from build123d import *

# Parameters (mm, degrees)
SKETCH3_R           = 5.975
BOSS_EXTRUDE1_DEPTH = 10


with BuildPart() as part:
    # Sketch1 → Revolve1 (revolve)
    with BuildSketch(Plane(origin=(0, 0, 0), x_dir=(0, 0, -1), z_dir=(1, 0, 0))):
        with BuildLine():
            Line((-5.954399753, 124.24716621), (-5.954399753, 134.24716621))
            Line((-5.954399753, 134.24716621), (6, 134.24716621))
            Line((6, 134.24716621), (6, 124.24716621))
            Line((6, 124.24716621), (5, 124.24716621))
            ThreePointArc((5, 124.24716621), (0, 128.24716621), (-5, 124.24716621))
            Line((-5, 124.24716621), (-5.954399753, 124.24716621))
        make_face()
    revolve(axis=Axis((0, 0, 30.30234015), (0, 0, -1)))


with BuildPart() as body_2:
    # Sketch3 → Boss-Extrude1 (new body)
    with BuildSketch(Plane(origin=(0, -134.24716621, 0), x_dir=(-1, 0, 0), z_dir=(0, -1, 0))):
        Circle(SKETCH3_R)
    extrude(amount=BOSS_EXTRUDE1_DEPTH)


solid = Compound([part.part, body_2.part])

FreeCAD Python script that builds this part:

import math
import FreeCAD as App
import Part
import Sketcher
from FreeCAD import Vector
Q = App.Units.Quantity

doc = App.newDocument("Part")
body = doc.addObject("PartDesign::Body", "Body")

sketch1 = body.newObject("Sketcher::SketchObject", "Sketch")
sketch1.AttachmentSupport = (doc.getObject("YZ_Plane"), [""])
sketch1.MapMode = "FlatFace"
sketch1.addGeometry([
    Part.LineSegment(Vector(134.2, 6, 0), Vector(124.2, 6, 0)),
    Part.LineSegment(Vector(124.2, 6, 0), Vector(124.2, 5, 0)),
    Part.ArcOfCircle(Part.Circle(Vector(123.1, 0, 0), Vector(0, 0, 1), 5.1), math.radians(-77), math.radians(77)),
    Part.LineSegment(Vector(124.2, -5, 0), Vector(124.2, -6, 0)),
    Part.LineSegment(Vector(124.2, -6, 0), Vector(134.2, -6, 0)),
    Part.LineSegment(Vector(134.2, -6, 0), Vector(134.2, 6, 0)),
], False)
sketch1.addConstraint([
    Sketcher.Constraint("Coincident", 0, 2, 1, 1),
    Sketcher.Constraint("Coincident", 1, 2, 2, 2),
    Sketcher.Constraint("Coincident", 2, 1, 3, 1),
    Sketcher.Constraint("Coincident", 3, 2, 4, 1),
    Sketcher.Constraint("Coincident", 4, 2, 5, 1),
    Sketcher.Constraint("Coincident", 5, 2, 0, 1),
    Sketcher.Constraint("Horizontal", 0),
    Sketcher.Constraint("Vertical", 1),
    Sketcher.Constraint("Vertical", 3),
    Sketcher.Constraint("Horizontal", 4),
    Sketcher.Constraint("Vertical", 5),
    Sketcher.Constraint("Symmetric", 1, 2, 2, 1, -1),
    Sketcher.Constraint("DistanceX", 0, 2, 0, 1, Q("10 mm")),
    Sketcher.Constraint("DistanceY", 3, 2, 3, 1, Q("1 mm")),
    Sketcher.Constraint("DistanceY", -1, 1, 1, 2, Q("5 mm")),
    Sketcher.Constraint("Radius", 2, Q("5.125 mm")),
    Sketcher.Constraint("DistanceY", 1, 2, 1, 1, Q("0.9544 mm")),
    Sketcher.Constraint("DistanceX", -1, 1, 2, 3, Q("123.122166 mm")),
])
revolution = body.newObject("PartDesign::Revolution", "Revolution")
revolution.Profile = sketch1
revolution.ReferenceAxis = (sketch1, ["V_Axis"])
revolution.Angle = 360
body2 = doc.addObject("PartDesign::Body", "Body001")

sketch2 = body2.newObject("Sketcher::SketchObject", "Sketch001")
sketch2.AttachmentSupport = (doc.getObject("XZ_Plane001"), [""])
sketch2.MapMode = "FlatFace"
sketch2.AttachmentOffset = App.Placement(Vector(0, 0, 134.247166), App.Rotation())
sketch2.addGeometry(Part.Circle(Vector(0, 0, 0), Vector(0, 0, 1), 6), False)
sketch2.addConstraint([
    Sketcher.Constraint("Coincident", 0, 3, -1, 1),
    Sketcher.Constraint("Diameter", 0, Q("11.95 mm")),
])
pad1 = body2.newObject("PartDesign::Pad", "Pad")
pad1.Profile = sketch2
pad1.Length = 10

doc.recompute()
